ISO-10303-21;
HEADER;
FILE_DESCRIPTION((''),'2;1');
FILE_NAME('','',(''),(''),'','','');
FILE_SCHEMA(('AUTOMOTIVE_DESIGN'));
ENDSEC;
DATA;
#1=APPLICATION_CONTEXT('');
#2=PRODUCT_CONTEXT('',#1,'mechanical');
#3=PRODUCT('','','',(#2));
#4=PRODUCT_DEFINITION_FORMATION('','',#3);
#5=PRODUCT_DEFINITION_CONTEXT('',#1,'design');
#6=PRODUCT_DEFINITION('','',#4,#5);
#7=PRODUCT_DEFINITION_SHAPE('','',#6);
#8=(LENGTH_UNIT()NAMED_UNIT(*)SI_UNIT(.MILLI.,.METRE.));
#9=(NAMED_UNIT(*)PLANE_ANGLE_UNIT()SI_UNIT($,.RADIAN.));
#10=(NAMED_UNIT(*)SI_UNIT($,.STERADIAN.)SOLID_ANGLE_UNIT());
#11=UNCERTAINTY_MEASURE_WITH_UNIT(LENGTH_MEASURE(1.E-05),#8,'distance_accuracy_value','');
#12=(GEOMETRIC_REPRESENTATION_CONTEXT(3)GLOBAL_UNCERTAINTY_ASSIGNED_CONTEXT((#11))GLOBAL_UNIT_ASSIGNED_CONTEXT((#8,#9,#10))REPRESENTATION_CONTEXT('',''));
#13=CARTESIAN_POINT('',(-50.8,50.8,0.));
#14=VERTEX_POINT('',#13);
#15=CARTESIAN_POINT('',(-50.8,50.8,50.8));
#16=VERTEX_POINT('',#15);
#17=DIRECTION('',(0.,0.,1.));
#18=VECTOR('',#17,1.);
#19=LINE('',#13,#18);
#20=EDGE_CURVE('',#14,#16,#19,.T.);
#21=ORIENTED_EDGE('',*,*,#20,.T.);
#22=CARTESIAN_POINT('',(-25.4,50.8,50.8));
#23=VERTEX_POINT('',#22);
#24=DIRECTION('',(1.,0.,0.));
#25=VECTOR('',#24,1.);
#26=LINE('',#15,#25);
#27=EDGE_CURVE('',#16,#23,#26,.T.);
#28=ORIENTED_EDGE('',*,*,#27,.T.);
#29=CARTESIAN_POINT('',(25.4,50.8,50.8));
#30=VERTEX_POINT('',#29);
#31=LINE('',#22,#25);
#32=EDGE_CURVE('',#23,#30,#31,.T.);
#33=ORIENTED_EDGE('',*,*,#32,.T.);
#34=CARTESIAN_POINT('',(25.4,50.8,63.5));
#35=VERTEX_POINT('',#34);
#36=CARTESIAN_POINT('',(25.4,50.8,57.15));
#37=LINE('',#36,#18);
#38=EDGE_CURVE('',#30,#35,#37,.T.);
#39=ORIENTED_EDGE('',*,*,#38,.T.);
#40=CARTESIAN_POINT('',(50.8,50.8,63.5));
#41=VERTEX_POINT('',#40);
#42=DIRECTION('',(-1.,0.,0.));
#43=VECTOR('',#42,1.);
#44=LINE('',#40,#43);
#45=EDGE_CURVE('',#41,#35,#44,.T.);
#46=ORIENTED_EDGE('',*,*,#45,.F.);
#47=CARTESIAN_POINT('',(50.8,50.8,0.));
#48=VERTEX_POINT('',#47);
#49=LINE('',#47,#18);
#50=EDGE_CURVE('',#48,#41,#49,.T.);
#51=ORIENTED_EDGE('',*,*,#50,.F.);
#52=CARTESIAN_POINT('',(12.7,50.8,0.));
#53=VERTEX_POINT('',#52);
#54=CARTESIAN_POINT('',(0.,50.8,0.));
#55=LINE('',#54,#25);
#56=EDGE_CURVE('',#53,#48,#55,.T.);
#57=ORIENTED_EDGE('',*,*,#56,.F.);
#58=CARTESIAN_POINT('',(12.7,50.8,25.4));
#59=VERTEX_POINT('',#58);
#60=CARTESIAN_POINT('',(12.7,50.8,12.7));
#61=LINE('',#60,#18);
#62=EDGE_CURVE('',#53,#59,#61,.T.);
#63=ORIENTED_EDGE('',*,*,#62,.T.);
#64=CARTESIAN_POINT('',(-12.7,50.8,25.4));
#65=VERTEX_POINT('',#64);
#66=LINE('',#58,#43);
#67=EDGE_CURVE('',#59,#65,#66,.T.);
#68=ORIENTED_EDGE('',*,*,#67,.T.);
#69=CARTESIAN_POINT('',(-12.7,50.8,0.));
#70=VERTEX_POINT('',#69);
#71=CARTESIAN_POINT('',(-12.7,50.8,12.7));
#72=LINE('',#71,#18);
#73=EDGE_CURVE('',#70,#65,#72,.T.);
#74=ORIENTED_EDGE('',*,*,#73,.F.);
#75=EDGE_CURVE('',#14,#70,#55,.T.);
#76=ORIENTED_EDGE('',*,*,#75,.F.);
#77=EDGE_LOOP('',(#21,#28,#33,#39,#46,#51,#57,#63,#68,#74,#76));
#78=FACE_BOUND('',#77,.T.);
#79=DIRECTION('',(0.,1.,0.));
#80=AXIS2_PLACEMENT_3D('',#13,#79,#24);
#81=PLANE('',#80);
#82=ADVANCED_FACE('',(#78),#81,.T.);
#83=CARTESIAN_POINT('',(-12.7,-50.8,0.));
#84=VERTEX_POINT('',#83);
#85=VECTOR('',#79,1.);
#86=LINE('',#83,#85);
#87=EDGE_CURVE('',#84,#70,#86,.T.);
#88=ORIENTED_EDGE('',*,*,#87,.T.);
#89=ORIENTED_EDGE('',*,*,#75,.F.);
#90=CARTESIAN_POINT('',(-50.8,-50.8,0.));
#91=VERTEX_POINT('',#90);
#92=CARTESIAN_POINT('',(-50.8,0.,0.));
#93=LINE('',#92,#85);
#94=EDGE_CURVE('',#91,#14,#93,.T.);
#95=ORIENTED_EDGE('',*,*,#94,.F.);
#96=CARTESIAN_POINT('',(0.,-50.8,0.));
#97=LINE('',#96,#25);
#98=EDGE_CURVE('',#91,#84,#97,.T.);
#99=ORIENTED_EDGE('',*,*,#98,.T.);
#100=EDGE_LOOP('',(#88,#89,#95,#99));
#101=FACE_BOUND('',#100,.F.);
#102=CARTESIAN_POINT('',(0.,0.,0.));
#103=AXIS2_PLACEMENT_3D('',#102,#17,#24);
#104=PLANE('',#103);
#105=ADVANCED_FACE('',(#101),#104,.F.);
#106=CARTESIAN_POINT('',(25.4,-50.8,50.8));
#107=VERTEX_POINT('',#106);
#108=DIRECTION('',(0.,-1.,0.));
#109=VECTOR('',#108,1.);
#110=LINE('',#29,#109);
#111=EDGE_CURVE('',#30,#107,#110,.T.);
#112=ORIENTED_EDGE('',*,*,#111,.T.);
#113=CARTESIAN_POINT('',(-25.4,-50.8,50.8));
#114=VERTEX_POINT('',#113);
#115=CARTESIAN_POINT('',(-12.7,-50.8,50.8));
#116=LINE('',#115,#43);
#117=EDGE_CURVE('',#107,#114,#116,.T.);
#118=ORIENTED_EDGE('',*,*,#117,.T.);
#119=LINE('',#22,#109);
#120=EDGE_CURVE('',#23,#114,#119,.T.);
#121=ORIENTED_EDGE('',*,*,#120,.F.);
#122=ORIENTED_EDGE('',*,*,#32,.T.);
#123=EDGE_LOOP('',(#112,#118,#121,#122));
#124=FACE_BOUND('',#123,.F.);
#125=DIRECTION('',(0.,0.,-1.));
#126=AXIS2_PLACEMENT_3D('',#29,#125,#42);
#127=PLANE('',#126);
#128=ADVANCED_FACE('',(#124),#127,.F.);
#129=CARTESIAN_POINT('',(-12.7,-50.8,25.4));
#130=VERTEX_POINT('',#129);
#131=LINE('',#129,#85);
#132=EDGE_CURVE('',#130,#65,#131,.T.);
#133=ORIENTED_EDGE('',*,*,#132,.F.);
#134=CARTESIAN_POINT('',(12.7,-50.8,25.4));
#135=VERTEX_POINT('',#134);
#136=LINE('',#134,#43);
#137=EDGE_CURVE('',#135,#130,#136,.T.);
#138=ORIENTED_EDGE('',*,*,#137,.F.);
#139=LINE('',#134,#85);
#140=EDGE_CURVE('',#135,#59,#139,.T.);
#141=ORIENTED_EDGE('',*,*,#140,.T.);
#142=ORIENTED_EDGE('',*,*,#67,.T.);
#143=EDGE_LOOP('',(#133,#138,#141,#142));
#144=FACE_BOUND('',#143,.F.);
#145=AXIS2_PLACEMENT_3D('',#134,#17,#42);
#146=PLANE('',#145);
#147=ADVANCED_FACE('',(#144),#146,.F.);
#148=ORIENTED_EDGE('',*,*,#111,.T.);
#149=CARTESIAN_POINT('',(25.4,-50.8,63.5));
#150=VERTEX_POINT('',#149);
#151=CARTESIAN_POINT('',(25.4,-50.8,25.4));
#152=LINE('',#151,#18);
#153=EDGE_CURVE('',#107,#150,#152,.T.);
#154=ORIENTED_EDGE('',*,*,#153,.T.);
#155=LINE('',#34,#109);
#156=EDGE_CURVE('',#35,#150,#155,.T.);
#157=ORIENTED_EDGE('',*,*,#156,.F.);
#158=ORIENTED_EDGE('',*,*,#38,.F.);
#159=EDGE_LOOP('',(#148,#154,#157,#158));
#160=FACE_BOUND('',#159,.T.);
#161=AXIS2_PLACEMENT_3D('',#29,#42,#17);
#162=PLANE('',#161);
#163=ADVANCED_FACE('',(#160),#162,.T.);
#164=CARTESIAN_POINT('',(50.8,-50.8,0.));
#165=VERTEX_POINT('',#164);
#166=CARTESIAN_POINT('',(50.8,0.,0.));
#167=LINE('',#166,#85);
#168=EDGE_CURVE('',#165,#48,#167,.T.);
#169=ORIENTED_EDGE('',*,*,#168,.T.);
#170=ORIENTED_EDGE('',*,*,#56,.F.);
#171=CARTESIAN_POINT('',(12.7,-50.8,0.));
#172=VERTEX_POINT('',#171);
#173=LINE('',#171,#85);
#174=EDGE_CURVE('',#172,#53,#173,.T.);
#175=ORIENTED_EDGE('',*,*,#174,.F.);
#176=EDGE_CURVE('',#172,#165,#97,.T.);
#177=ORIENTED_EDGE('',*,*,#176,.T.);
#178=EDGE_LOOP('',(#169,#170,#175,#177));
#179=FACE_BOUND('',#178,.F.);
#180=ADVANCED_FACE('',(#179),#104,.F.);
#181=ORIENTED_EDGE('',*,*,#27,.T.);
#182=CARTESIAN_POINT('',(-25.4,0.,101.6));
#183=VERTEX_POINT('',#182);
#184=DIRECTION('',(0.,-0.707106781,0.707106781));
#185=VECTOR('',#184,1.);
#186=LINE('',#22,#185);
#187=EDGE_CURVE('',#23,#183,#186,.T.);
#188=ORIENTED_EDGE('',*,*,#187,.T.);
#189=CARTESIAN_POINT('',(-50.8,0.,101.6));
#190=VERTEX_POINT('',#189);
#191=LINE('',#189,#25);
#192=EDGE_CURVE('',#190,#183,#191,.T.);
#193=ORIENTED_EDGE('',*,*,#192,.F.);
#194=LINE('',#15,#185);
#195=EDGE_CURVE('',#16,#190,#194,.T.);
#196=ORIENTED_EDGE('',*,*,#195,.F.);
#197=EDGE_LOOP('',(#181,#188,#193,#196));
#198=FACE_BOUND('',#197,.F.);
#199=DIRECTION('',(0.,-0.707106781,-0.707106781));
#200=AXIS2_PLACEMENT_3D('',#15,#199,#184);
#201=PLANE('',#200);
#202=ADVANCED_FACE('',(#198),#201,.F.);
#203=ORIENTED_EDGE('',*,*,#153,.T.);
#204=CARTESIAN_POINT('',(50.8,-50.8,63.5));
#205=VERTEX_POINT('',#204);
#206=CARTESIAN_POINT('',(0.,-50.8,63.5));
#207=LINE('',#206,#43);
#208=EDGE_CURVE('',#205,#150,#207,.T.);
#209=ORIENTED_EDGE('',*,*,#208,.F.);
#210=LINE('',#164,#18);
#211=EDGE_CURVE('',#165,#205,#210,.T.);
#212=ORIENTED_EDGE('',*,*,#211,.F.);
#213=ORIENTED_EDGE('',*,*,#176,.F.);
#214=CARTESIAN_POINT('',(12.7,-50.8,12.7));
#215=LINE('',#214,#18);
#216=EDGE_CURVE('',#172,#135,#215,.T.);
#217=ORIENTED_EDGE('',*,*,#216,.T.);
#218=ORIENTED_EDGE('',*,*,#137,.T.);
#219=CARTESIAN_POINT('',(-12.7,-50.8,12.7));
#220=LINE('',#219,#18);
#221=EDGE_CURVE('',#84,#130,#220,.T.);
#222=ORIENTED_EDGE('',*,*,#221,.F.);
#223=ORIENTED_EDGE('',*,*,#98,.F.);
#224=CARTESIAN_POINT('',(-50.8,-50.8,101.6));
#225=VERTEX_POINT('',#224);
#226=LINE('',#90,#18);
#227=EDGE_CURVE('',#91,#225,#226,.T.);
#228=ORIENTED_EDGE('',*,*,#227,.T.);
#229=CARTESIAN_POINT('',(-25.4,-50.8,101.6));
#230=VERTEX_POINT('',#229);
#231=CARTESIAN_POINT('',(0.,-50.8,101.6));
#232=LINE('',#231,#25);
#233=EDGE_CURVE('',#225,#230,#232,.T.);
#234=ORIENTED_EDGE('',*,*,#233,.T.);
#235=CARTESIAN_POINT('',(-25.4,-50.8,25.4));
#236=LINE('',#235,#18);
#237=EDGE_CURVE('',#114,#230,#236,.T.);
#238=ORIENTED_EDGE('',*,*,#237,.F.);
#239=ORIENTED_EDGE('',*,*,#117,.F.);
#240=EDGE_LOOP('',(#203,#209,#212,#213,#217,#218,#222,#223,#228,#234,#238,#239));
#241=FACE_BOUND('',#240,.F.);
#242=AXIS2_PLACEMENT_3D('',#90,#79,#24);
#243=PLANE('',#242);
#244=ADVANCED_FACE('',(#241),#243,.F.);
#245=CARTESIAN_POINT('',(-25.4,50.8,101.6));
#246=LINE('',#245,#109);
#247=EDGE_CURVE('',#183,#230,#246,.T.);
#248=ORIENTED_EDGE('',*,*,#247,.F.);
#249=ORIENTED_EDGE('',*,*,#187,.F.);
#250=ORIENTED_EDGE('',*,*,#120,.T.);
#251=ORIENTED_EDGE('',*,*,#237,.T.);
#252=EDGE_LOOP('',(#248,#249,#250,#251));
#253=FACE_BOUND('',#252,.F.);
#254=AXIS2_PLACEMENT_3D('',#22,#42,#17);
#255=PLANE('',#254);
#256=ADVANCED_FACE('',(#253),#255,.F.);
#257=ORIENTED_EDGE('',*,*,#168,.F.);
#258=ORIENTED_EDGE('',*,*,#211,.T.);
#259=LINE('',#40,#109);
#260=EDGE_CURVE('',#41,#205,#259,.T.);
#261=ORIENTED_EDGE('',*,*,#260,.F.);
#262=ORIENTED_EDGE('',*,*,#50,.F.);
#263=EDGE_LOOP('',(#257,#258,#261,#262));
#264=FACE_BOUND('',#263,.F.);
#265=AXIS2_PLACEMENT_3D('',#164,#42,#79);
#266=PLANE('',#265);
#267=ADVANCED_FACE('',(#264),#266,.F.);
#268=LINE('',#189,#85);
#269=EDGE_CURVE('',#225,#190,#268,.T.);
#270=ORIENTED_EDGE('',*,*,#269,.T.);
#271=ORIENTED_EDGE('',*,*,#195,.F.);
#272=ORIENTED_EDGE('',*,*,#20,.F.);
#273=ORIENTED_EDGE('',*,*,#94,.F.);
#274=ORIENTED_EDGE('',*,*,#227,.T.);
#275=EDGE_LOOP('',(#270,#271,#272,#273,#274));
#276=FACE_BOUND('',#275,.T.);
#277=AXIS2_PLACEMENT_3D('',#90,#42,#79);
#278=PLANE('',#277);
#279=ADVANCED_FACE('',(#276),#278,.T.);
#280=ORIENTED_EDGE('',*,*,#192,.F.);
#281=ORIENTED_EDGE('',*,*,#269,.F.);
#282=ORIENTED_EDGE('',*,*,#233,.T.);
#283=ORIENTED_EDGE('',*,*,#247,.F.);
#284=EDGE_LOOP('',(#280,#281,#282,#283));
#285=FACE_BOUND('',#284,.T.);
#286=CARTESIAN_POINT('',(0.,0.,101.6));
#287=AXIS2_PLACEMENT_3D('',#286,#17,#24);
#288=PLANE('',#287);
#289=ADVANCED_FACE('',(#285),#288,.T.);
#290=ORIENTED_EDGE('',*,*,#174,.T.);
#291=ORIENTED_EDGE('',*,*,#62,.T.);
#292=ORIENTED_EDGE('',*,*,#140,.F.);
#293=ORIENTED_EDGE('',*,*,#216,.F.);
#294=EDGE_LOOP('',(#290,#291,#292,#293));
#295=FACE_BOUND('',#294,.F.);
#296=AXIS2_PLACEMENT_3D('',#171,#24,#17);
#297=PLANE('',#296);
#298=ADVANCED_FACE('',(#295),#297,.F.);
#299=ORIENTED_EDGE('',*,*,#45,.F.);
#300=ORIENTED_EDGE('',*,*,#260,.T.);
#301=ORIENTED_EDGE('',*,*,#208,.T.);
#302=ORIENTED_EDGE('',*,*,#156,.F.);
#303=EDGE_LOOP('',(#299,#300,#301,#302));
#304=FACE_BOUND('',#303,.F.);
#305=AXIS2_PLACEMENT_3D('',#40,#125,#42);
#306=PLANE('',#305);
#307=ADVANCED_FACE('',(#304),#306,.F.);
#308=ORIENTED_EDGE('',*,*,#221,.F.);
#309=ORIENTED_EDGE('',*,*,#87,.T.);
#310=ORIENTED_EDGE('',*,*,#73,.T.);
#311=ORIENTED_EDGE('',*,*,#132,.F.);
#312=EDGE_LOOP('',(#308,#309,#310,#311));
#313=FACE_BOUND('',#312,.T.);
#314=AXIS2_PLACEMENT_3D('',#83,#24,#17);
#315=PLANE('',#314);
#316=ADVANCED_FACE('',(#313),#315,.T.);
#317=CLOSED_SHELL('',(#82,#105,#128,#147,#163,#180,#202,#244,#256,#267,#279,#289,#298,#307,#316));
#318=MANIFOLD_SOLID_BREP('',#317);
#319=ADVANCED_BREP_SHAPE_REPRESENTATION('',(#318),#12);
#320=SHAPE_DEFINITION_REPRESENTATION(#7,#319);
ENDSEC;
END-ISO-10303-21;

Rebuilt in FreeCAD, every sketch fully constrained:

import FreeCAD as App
import Part
import Sketcher

V = App.Vector
Q = App.Units.Quantity


def add_polygon(sketch, points):
    """Adds a closed chain of lines whose ends are joined by coincident constraints."""
    first, n = sketch.GeometryCount, len(points)
    for a, b in zip(points, points[1:] + points[:1]):
        sketch.addGeometry(Part.LineSegment(App.Vector(*a, 0), App.Vector(*b, 0)), False)
    for i in range(n):
        sketch.addConstraint(Sketcher.Constraint("Coincident", first + i, 2, first + (i + 1) % n, 1))

doc = App.newDocument("Part")
body = doc.addObject("PartDesign::Body", "Body")

sketch1 = body.newObject("Sketcher::SketchObject", "Sketch")
sketch1.AttachmentSupport = (doc.getObject("XY_Plane"), [""])
sketch1.MapMode = "FlatFace"
add_polygon(sketch1, [(-51, 51), (-51, -51), (51, -51), (51, 51)])
sketch1.addConstraint([
    Sketcher.Constraint("Vertical", 0),
    Sketcher.Constraint("Horizontal", 1),
    Sketcher.Constraint("Vertical", 2),
    Sketcher.Constraint("Horizontal", 3),
    Sketcher.Constraint("Symmetric", 0, 2, 2, 2, -1, 1),
    Sketcher.Constraint("Equal", 3, 0),
    Sketcher.Constraint("DistanceX", 1, 1, 1, 2, Q("4 in")),
])
pad1 = body.newObject("PartDesign::Pad", "Pad")
pad1.Profile = sketch1
pad1.Length = Q("4 in")

sketch2 = body.newObject("Sketcher::SketchObject", "Sketch001")
sketch2.AttachmentSupport = (doc.getObject("XZ_Plane"), [""])
sketch2.MapMode = "FlatFace"
sketch2.AttachmentOffset = App.Placement(V(0, 0, 2 * 25.4), App.Rotation())
add_polygon(sketch2, [(-13, 25), (-13, 0), (13, 0), (13, 25)])
sketch2.addConstraint([
    Sketcher.Constraint("Vertical", 0),
    Sketcher.Constraint("Horizontal", 1),
    Sketcher.Constraint("Vertical", 2),
    Sketcher.Constraint("Horizontal", 3),
    Sketcher.Constraint("Symmetric", 0, 2, 1, 2, -1, 1),
    Sketcher.Constraint("Equal", 3, 0),
    Sketcher.Constraint("DistanceX", 1, 1, 1, 2, Q("1 in")),
])
pocket1 = body.newObject("PartDesign::Pocket", "Pocket")
pocket1.Profile = sketch2
pocket1.Length = Q("4 in")

sketch3 = body.newObject("Sketcher::SketchObject", "Sketch002")
sketch3.AttachmentSupport = (doc.getObject("XZ_Plane"), [""])
sketch3.MapMode = "FlatFace"
sketch3.AttachmentOffset = App.Placement(V(0, 0, -2 * 25.4), App.Rotation())
add_polygon(sketch3, [(-25, 102), (51, 102), (51, 64), (25, 64), (25, 51), (-25, 51)])
sketch3.addConstraint([
    Sketcher.Constraint("Horizontal", 0),
    Sketcher.Constraint("Vertical", 1),
    Sketcher.Constraint("Horizontal", 2),
    Sketcher.Constraint("Vertical", 3),
    Sketcher.Constraint("Horizontal", 4),
    Sketcher.Constraint("Vertical", 5),
    Sketcher.Constraint("Equal", 4, 5),
    Sketcher.Constraint("DistanceX", 0, 1, 0, 2, Q("3 in")),
    Sketcher.Constraint("DistanceX", 2, 2, 2, 1, Q("1 in")),
    Sketcher.Constraint("DistanceY", 1, 2, 1, 1, Q("1.5 in")),
    Sketcher.Constraint("DistanceX", -1, 1, 0, 2, Q("2 in")),
    Sketcher.Constraint("DistanceY", -1, 1, 0, 2, Q("4 in")),
])
pocket2 = body.newObject("PartDesign::Pocket", "Pocket001")
pocket2.Profile = sketch3
pocket2.Length = Q("16.77 in")
pocket2.Reversed = True

sketch4 = body.newObject("Sketcher::SketchObject", "Sketch003")
sketch4.AttachmentSupport = (doc.getObject("YZ_Plane"), [""])
sketch4.MapMode = "FlatFace"
sketch4.AttachmentOffset = App.Placement(V(0, 0, -2 * 25.4), App.Rotation())
add_polygon(sketch4, [(51, 51), (0, 102), (51, 102)])
sketch4.addConstraint([
    Sketcher.Constraint("Horizontal", 1),
    Sketcher.Constraint("Vertical", 2),
    Sketcher.Constraint("PointOnObject", 0, 2, -2),
    Sketcher.Constraint("Equal", 1, 2),
    Sketcher.Constraint("DistanceX", 1, 1, 1, 2, Q("2 in")),
    Sketcher.Constraint("DistanceY", -1, 1, 0, 2, Q("4 in")),
])
pocket3 = body.newObject("PartDesign::Pocket", "Pocket002")
pocket3.Profile = sketch4
pocket3.Length = Q("2.05 in")
pocket3.Reversed = True

doc.recompute()
